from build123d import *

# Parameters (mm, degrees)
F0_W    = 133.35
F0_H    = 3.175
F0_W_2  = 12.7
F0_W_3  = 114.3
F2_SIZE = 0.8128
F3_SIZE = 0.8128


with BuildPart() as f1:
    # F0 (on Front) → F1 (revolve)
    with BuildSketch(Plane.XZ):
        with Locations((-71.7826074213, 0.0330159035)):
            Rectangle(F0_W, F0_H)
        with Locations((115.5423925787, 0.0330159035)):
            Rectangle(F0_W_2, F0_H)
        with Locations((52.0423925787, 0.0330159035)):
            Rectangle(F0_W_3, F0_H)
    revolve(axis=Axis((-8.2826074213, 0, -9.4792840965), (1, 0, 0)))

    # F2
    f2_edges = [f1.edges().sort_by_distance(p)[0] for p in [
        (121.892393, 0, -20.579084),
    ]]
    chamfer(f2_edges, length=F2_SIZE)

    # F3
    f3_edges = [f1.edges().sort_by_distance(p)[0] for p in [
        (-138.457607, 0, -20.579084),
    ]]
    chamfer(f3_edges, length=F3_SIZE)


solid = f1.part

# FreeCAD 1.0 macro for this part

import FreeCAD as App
import Part
import Sketcher
from FreeCAD import Vector
Q = App.Units.Quantity


def edges_at(feature, points):
    """Names of the edges that pass closest to the given points."""
    edges = feature.Shape.Edges
    near = lambda p: min(range(len(edges)), key=lambda i: edges[i].distToShape(Part.Vertex(*p))[0])
    return sorted({f"Edge{near(p) + 1}" for p in points})


def add_polygon(sketch, points):
    """Adds a closed chain of lines whose ends are joined by coincident constraints."""
    first, n = sketch.GeometryCount, len(points)
    for a, b in zip(points, points[1:] + points[:1]):
        sketch.addGeometry(Part.LineSegment(App.Vector(*a, 0), App.Vector(*b, 0)), False)
    for i in range(n):
        sketch.addConstraint(Sketcher.Constraint("Coincident", first + i, 2, first + (i + 1) % n, 1))

doc = App.newDocument("Part")
body = doc.addObject("PartDesign::Body", "Body")

# Sketch on XZ plane
sketch1 = body.newObject("Sketcher::SketchObject", "Sketch")
sketch1.AttachmentSupport = (doc.getObject("XZ_Plane"), [""])
sketch1.MapMode = "FlatFace"
add_polygon(sketch1, [(-138.457607, 1.620516), (-138.457607, -1.554484), (121.892393, -1.554484), (121.892393, 1.620516)])  # lines 0-3
sketch1.addGeometry(Part.LineSegment(Vector(-138.457607, -9.479284, 0), Vector(121.892393, -9.479284, 0)), True)  # axis
sketch1.addConstraint(Sketcher.Constraint("Vertical", 0))
sketch1.addConstraint(Sketcher.Constraint("Horizontal", 1))
sketch1.addConstraint(Sketcher.Constraint("Vertical", 2))
sketch1.addConstraint(Sketcher.Constraint("Horizontal", 3))
sketch1.addConstraint(Sketcher.Constraint("Horizontal", 4))
sketch1.addConstraint(Sketcher.Constraint("Vertical", 3, 2, 4, 1))
sketch1.addConstraint(Sketcher.Constraint("Vertical", 2, 2, 4, 2))
sketch1.addConstraint(Sketcher.Constraint("DistanceX", 1, 1, 1, 2, Q("10.25 in")))
sketch1.addConstraint(Sketcher.Constraint("DistanceY", 0, 2, 0, 1, Q("0.125 in")))
sketch1.addConstraint(Sketcher.Constraint("DistanceY", 4, 1, 0, 2, Q("0.312 in")))
sketch1.addConstraint(Sketcher.Constraint("DistanceY", 0, 2, -1, 1, Q("0.0612002 in")))
sketch1.addConstraint(Sketcher.Constraint("DistanceX", 0, 2, -1, 1, Q("138.457607 mm")))
revolution = body.newObject("PartDesign::Revolution", "Revolution")
revolution.Profile = sketch1
revolution.ReferenceAxis = (sketch1, ["Axis0"])
revolution.Angle = 360
doc.recompute()

chamfer = body.newObject("PartDesign::Chamfer", "Chamfer")
chamfer.Base = (revolution, edges_at(revolution, [(121.892, 0, -20.579)]))
chamfer.Size = Q("0.032 in")
doc.recompute()

chamfer2 = body.newObject("PartDesign::Chamfer", "Chamfer001")
chamfer2.Base = (chamfer, edges_at(chamfer, [(-138.458, 0, -20.579)]))
chamfer2.Size = Q("0.032 in")

doc.recompute()
